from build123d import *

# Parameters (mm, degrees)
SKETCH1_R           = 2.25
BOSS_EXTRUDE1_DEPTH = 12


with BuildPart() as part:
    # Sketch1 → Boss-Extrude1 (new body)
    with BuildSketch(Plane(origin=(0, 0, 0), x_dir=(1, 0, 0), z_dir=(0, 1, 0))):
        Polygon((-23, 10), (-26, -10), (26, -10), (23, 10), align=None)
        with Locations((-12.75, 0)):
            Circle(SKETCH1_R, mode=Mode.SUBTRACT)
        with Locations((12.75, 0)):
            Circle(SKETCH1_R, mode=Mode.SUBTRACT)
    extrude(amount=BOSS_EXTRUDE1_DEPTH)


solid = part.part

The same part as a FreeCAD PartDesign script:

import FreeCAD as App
import Part
import Sketcher

V = App.Vector


def add_polygon(sketch, points):
    """Adds a closed chain of lines whose ends are joined by coincident constraints."""
    first, n = sketch.GeometryCount, len(points)
    for a, b in zip(points, points[1:] + points[:1]):
        sketch.addGeometry(Part.LineSegment(App.Vector(*a, 0), App.Vector(*b, 0)), False)
    for i in range(n):
        sketch.addConstraint(Sketcher.Constraint("Coincident", first + i, 2, first + (i + 1) % n, 1))

doc = App.newDocument("Part")
body = doc.addObject("PartDesign::Body", "Body")

# Sketch on XZ plane
sketch1 = body.newObject("Sketcher::SketchObject", "Sketch")
sketch1.AttachmentSupport = (doc.getObject("XZ_Plane"), [""])
sketch1.MapMode = "FlatFace"
add_polygon(sketch1, [(-23, -10), (-26, 10), (26, 10), (23, -10)])  # lines 0-3
sketch1.addGeometry(Part.Circle(V(-12.8, 0, 0), V(0, 0, 1), 2.2), False)  # 4
sketch1.addGeometry(Part.Circle(V(12.8, 0, 0), V(0, 0, 1), 2.2), False)  # 5
sketch1.addConstraint(Sketcher.Constraint("Horizontal", 1))
sketch1.addConstraint(Sketcher.Constraint("Horizontal", 3))
sketch1.addConstraint(Sketcher.Constraint("Equal", 4, 5))
sketch1.addConstraint(Sketcher.Constraint("Symmetric", 4, 3, 5, 3, -1, 1))
sketch1.addConstraint(Sketcher.Constraint("PointOnObject", 4, 3, -1))
sketch1.addConstraint(Sketcher.Constraint("Equal", 0, 2))
sketch1.addConstraint(Sketcher.Constraint("Diameter", 4, 4.5))
sketch1.addConstraint(Sketcher.Constraint("DistanceX", 1, 1, 1, 2, 52.0))
sketch1.addConstraint(Sketcher.Constraint("DistanceX", 3, 2, 3, 1, 46.0))
sketch1.addConstraint(Sketcher.Constraint("DistanceX", 0, 2, -1, 1, 26.0))
sketch1.addConstraint(Sketcher.Constraint("DistanceY", -1, 1, 0, 2, 10.0))
sketch1.addConstraint(Sketcher.Constraint("DistanceY", 2, 2, -1, 1, 10.0))
sketch1.addConstraint(Sketcher.Constraint("DistanceX", 4, 3, 5, 3, 25.5))
pad1 = body.newObject("PartDesign::Pad", "Pad")
pad1.Profile = sketch1
pad1.Length = 12
pad1.Reversed = True

doc.recompute()
